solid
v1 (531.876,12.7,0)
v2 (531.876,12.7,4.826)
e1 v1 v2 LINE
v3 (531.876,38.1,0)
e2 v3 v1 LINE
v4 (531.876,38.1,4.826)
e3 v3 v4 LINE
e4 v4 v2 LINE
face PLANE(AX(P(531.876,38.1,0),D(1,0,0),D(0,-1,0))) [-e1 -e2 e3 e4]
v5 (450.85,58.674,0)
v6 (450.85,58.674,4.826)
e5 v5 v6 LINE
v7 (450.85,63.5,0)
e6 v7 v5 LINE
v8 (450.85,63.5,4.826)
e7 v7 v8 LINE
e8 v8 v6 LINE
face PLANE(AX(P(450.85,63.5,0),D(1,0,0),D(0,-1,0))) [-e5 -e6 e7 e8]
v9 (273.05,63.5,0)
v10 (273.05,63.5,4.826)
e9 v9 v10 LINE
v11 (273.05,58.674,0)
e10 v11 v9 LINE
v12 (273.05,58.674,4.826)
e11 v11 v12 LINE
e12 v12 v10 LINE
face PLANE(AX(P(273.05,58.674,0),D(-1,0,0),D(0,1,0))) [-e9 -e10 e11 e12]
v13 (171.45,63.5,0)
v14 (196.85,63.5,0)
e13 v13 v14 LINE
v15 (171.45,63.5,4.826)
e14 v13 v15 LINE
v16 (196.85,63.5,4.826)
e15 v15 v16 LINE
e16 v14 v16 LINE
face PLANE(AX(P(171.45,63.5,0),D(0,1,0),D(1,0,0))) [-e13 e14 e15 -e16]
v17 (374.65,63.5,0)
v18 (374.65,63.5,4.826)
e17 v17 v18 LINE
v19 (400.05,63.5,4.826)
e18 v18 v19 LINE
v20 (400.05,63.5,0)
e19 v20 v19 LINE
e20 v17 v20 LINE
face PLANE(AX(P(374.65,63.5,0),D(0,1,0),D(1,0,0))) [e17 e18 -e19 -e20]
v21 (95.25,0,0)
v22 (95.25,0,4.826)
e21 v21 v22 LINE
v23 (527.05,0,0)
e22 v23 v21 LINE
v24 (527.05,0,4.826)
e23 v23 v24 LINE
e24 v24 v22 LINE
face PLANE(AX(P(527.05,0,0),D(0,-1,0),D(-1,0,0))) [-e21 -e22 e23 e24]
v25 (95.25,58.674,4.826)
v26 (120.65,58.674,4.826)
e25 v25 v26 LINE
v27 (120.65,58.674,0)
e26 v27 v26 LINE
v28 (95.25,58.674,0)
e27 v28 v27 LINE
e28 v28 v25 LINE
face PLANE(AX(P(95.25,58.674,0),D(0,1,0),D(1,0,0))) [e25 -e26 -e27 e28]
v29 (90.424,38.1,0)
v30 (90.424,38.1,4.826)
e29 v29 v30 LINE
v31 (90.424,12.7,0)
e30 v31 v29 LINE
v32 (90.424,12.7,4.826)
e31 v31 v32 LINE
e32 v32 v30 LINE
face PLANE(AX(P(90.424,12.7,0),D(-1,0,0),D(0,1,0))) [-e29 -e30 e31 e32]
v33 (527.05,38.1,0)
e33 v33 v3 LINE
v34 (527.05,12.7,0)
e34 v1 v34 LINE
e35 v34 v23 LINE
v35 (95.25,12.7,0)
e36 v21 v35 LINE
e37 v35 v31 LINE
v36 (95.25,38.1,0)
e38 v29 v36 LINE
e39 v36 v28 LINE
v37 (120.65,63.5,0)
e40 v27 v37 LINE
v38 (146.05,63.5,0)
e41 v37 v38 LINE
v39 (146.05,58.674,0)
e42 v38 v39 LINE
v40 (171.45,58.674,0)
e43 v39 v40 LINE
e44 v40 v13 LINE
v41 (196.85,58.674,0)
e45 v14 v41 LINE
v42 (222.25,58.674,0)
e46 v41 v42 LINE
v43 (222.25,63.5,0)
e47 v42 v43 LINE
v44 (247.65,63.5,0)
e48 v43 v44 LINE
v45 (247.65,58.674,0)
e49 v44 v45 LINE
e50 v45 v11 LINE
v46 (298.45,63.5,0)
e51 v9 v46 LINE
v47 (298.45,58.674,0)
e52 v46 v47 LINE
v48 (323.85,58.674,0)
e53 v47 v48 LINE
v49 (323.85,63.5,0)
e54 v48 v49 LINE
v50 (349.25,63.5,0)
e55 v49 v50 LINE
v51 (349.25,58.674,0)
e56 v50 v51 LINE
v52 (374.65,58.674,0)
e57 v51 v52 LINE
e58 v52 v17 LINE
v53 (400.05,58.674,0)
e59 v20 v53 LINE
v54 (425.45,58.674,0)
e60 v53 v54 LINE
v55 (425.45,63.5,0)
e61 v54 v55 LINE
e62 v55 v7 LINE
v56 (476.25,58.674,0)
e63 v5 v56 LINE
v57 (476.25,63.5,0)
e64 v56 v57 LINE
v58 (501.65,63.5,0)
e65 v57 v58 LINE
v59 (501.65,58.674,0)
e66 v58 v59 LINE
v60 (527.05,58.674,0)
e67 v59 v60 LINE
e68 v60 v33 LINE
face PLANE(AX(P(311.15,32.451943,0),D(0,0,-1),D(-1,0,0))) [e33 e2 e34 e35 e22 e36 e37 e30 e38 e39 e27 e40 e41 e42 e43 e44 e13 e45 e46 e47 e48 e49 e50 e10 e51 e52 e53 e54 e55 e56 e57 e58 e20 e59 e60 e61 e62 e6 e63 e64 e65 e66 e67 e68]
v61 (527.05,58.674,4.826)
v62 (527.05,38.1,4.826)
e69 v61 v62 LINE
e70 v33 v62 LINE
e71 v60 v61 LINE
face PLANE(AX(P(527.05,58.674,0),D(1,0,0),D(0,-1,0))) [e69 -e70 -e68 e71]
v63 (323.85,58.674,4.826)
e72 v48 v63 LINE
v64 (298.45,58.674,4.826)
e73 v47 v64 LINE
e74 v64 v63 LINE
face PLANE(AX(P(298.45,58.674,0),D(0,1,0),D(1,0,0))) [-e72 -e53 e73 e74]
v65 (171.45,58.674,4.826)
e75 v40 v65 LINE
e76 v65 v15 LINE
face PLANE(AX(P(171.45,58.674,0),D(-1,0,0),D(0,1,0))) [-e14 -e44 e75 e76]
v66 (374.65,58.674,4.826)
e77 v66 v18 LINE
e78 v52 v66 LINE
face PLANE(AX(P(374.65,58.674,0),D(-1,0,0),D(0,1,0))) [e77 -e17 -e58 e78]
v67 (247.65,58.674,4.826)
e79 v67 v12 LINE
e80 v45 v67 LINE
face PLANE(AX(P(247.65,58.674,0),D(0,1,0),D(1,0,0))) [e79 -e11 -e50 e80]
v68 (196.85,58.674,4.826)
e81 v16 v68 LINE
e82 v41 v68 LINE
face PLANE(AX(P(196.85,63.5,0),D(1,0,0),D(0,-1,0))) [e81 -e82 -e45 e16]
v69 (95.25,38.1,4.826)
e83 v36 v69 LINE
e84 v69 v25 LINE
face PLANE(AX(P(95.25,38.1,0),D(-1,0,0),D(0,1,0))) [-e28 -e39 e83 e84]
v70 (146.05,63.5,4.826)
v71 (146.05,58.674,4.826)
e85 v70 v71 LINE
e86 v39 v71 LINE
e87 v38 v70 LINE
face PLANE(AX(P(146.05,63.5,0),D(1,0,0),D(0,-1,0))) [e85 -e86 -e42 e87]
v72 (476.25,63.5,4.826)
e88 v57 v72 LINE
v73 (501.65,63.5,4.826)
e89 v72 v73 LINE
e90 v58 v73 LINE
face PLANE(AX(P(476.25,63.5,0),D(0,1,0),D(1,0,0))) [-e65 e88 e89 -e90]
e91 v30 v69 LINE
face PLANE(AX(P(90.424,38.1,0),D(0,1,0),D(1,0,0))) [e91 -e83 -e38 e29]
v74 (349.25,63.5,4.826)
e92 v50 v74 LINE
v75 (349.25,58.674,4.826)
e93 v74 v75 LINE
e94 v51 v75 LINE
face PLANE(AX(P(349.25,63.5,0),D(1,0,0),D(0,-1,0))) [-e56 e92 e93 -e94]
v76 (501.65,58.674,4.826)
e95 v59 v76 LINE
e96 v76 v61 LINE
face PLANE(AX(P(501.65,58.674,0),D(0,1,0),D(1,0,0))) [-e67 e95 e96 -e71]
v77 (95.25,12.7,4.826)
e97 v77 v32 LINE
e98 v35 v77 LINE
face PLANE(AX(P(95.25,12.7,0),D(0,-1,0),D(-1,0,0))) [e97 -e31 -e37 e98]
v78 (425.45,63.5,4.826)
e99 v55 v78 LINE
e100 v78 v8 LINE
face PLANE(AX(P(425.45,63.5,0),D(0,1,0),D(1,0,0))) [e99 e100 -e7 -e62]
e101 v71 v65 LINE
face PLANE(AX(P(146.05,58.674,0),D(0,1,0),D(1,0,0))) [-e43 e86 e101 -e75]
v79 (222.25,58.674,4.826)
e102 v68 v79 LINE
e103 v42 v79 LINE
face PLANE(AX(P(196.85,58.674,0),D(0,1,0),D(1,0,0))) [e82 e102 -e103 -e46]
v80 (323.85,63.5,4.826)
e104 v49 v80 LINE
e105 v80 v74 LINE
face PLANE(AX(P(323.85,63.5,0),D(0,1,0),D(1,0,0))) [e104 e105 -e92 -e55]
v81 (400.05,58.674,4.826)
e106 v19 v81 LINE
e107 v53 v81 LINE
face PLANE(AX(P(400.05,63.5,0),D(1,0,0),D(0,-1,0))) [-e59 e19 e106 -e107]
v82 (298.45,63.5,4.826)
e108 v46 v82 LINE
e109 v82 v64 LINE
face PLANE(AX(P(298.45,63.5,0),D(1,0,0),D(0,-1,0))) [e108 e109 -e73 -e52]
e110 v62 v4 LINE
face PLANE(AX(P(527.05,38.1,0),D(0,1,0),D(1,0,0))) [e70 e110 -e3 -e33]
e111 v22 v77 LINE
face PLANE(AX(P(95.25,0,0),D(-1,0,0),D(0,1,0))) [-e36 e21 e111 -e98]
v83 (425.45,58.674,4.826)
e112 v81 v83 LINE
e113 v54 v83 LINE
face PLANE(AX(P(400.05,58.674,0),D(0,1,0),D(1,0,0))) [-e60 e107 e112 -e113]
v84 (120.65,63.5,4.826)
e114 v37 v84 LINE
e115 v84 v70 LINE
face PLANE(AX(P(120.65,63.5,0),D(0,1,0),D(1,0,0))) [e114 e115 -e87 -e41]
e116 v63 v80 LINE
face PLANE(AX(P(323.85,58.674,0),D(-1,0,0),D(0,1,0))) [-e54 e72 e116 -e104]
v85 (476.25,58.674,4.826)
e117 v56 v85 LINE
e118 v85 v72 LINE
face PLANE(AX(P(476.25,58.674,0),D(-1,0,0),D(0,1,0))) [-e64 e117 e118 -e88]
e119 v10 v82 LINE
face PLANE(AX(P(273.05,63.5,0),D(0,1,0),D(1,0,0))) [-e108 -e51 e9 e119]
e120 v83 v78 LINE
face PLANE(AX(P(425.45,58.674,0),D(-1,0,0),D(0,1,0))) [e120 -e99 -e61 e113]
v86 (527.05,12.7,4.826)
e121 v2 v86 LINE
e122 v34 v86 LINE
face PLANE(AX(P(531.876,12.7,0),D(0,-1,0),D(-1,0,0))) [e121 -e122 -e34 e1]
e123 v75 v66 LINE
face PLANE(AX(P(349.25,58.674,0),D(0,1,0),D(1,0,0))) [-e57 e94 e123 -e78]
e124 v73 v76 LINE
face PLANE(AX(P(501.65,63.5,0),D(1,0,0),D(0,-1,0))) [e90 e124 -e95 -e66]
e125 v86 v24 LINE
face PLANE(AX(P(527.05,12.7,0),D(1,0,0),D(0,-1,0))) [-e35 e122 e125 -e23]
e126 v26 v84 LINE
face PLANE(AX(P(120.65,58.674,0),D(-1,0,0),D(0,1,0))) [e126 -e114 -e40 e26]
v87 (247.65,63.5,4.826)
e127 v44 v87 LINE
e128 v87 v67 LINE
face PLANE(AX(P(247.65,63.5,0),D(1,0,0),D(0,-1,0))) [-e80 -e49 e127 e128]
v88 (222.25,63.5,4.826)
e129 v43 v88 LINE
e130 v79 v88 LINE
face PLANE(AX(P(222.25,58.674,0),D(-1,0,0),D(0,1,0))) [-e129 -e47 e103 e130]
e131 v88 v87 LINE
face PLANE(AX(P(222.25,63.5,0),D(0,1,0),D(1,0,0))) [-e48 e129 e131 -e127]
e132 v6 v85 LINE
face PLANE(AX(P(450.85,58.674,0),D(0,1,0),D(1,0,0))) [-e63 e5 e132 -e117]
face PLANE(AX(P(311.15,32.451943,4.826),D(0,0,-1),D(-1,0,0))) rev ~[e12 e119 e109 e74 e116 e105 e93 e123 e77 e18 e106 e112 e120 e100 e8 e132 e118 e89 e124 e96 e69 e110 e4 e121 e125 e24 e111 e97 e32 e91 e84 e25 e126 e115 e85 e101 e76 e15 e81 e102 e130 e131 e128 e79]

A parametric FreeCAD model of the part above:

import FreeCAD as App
import Part
import Sketcher
Q = App.Units.Quantity


def add_polygon(sketch, points):
    """Adds a closed chain of lines whose ends are joined by coincident constraints."""
    first, n = sketch.GeometryCount, len(points)
    for a, b in zip(points, points[1:] + points[:1]):
        sketch.addGeometry(Part.LineSegment(App.Vector(*a, 0), App.Vector(*b, 0)), False)
    for i in range(n):
        sketch.addConstraint(Sketcher.Constraint("Coincident", first + i, 2, first + (i + 1) % n, 1))

doc = App.newDocument("Part")
body = doc.addObject("PartDesign::Body", "Body")

sketch1 = doc.addObject("Sketcher::SketchObject", "Sketch")
body.addObject(sketch1)
sketch1.AttachmentSupport = (doc.XY_Plane, [""])
sketch1.MapMode = "FlatFace"
add_polygon(sketch1, [(527, 0), (527, 12.7), (531.9, 12.7), (531.9, 38.1), (527, 38.1), (527, 58.7), (501.6, 58.7), (501.6, 63.5), (476.2, 63.5), (476.2, 58.7), (450.9, 58.7), (450.9, 63.5), (425.4, 63.5), (425.4, 58.7), (400.1, 58.7), (400.1, 63.5), (374.6, 63.5), (374.6, 58.7), (349.2, 58.7), (349.2, 63.5), (323.9, 63.5), (323.9, 58.7), (298.4, 58.7), (298.4, 63.5), (273.1, 63.5), (273.1, 58.7), (247.7, 58.7), (247.7, 63.5), (222.2, 63.5), (222.2, 58.7), (196.8, 58.7), (196.8, 63.5), (171.4, 63.5), (171.4, 58.7), (146.1, 58.7), (146.1, 63.5), (120.7, 63.5), (120.7, 58.7), (95.2, 58.7), (95.2, 38.1), (90.4, 38.1), (90.4, 12.7), (95.2, 12.7), (95.2, 0)])
sketch1.addConstraint([
    Sketcher.Constraint("Vertical", 0),
    Sketcher.Constraint("Horizontal", 1),
    Sketcher.Constraint("Vertical", 2),
    Sketcher.Constraint("Horizontal", 3),
    Sketcher.Constraint("Vertical", 4),
    Sketcher.Constraint("Horizontal", 5),
    Sketcher.Constraint("Vertical", 6),
    Sketcher.Constraint("Horizontal", 7),
    Sketcher.Constraint("Vertical", 8),
    Sketcher.Constraint("Horizontal", 9),
    Sketcher.Constraint("Vertical", 10),
    Sketcher.Constraint("Horizontal", 11),
    Sketcher.Constraint("Vertical", 12),
    Sketcher.Constraint("Horizontal", 13),
    Sketcher.Constraint("Vertical", 14),
    Sketcher.Constraint("Horizontal", 15),
    Sketcher.Constraint("Vertical", 16),
    Sketcher.Constraint("Horizontal", 17),
    Sketcher.Constraint("Vertical", 18),
    Sketcher.Constraint("Horizontal", 19),
    Sketcher.Constraint("Vertical", 20),
    Sketcher.Constraint("Horizontal", 21),
    Sketcher.Constraint("Vertical", 22),
    Sketcher.Constraint("Horizontal", 23),
    Sketcher.Constraint("Vertical", 24),
    Sketcher.Constraint("Horizontal", 25),
    Sketcher.Constraint("Vertical", 26),
    Sketcher.Constraint("Horizontal", 27),
    Sketcher.Constraint("Vertical", 28),
    Sketcher.Constraint("Horizontal", 29),
    Sketcher.Constraint("Vertical", 30),
    Sketcher.Constraint("Horizontal", 31),
    Sketcher.Constraint("Vertical", 32),
    Sketcher.Constraint("Horizontal", 33),
    Sketcher.Constraint("Vertical", 34),
    Sketcher.Constraint("Horizontal", 35),
    Sketcher.Constraint("Vertical", 36),
    Sketcher.Constraint("Horizontal", 37),
    Sketcher.Constraint("Vertical", 38),
    Sketcher.Constraint("Horizontal", 39),
    Sketcher.Constraint("Vertical", 40),
    Sketcher.Constraint("Horizontal", 41),
    Sketcher.Constraint("Vertical", 42),
    Sketcher.Constraint("Horizontal", 43),
    Sketcher.Constraint("PointOnObject", 42, 2, -1),
    Sketcher.Constraint("Horizontal", 5, 2, 8, 2),
    Sketcher.Constraint("Horizontal", 7, 2, 10, 2),
    Sketcher.Constraint("Horizontal", 9, 2, 12, 2),
    Sketcher.Constraint("Horizontal", 11, 2, 14, 2),
    Sketcher.Constraint("Horizontal", 13, 2, 16, 2),
    Sketcher.Constraint("Horizontal", 15, 2, 18, 2),
    Sketcher.Constraint("Horizontal", 17, 2, 20, 2),
    Sketcher.Constraint("Horizontal", 19, 2, 22, 2),
    Sketcher.Constraint("Horizontal", 21, 2, 24, 2),
    Sketcher.Constraint("Horizontal", 23, 2, 26, 2),
    Sketcher.Constraint("Horizontal", 25, 2, 28, 2),
    Sketcher.Constraint("Horizontal", 27, 2, 30, 2),
    Sketcher.Constraint("Horizontal", 29, 2, 32, 2),
    Sketcher.Constraint("Horizontal", 31, 2, 34, 2),
    Sketcher.Constraint("Horizontal", 33, 2, 36, 2),
    Sketcher.Constraint("Horizontal", 3, 2, 38, 2),
    Sketcher.Constraint("Horizontal", 1, 2, 40, 2),
    Sketcher.Constraint("Vertical", 0, 2, 3, 2),
    Sketcher.Constraint("Vertical", 38, 2, 41, 2),
    Sketcher.Constraint("Equal", 5, 7),
    Sketcher.Constraint("Equal", 7, 9),
    Sketcher.Constraint("Equal", 9, 11),
    Sketcher.Constraint("Equal", 11, 13),
    Sketcher.Constraint("Equal", 13, 15),
    Sketcher.Constraint("Equal", 15, 17),
    Sketcher.Constraint("Equal", 17, 19),
    Sketcher.Constraint("Equal", 19, 21),
    Sketcher.Constraint("Equal", 21, 23),
    Sketcher.Constraint("Equal", 23, 25),
    Sketcher.Constraint("Equal", 25, 27),
    Sketcher.Constraint("Equal", 27, 29),
    Sketcher.Constraint("Equal", 29, 31),
    Sketcher.Constraint("Equal", 31, 33),
    Sketcher.Constraint("Equal", 33, 35),
    Sketcher.Constraint("Equal", 35, 37),
    Sketcher.Constraint("Equal", 3, 39),
    Sketcher.Constraint("Equal", 37, 2),
    Sketcher.Constraint("Equal", 41, 6),
    Sketcher.Constraint("DistanceX", 5, 2, 5, 1, Q("1 in")),
    Sketcher.Constraint("DistanceY", 0, 1, 0, 2, Q("0.5 in")),
    Sketcher.Constraint("DistanceY", 3, 2, 6, 2, Q("1 in")),
    Sketcher.Constraint("DistanceX", 1, 1, 1, 2, Q("0.19 in")),
    Sketcher.Constraint("DistanceX", -1, 1, 0, 2, Q("20.75 in")),
])
pad1 = doc.addObject("PartDesign::Pad", "Pad")
body.addObject(pad1)
pad1.Profile = sketch1
pad1.Length = Q("0.19 in")

doc.recompute()
